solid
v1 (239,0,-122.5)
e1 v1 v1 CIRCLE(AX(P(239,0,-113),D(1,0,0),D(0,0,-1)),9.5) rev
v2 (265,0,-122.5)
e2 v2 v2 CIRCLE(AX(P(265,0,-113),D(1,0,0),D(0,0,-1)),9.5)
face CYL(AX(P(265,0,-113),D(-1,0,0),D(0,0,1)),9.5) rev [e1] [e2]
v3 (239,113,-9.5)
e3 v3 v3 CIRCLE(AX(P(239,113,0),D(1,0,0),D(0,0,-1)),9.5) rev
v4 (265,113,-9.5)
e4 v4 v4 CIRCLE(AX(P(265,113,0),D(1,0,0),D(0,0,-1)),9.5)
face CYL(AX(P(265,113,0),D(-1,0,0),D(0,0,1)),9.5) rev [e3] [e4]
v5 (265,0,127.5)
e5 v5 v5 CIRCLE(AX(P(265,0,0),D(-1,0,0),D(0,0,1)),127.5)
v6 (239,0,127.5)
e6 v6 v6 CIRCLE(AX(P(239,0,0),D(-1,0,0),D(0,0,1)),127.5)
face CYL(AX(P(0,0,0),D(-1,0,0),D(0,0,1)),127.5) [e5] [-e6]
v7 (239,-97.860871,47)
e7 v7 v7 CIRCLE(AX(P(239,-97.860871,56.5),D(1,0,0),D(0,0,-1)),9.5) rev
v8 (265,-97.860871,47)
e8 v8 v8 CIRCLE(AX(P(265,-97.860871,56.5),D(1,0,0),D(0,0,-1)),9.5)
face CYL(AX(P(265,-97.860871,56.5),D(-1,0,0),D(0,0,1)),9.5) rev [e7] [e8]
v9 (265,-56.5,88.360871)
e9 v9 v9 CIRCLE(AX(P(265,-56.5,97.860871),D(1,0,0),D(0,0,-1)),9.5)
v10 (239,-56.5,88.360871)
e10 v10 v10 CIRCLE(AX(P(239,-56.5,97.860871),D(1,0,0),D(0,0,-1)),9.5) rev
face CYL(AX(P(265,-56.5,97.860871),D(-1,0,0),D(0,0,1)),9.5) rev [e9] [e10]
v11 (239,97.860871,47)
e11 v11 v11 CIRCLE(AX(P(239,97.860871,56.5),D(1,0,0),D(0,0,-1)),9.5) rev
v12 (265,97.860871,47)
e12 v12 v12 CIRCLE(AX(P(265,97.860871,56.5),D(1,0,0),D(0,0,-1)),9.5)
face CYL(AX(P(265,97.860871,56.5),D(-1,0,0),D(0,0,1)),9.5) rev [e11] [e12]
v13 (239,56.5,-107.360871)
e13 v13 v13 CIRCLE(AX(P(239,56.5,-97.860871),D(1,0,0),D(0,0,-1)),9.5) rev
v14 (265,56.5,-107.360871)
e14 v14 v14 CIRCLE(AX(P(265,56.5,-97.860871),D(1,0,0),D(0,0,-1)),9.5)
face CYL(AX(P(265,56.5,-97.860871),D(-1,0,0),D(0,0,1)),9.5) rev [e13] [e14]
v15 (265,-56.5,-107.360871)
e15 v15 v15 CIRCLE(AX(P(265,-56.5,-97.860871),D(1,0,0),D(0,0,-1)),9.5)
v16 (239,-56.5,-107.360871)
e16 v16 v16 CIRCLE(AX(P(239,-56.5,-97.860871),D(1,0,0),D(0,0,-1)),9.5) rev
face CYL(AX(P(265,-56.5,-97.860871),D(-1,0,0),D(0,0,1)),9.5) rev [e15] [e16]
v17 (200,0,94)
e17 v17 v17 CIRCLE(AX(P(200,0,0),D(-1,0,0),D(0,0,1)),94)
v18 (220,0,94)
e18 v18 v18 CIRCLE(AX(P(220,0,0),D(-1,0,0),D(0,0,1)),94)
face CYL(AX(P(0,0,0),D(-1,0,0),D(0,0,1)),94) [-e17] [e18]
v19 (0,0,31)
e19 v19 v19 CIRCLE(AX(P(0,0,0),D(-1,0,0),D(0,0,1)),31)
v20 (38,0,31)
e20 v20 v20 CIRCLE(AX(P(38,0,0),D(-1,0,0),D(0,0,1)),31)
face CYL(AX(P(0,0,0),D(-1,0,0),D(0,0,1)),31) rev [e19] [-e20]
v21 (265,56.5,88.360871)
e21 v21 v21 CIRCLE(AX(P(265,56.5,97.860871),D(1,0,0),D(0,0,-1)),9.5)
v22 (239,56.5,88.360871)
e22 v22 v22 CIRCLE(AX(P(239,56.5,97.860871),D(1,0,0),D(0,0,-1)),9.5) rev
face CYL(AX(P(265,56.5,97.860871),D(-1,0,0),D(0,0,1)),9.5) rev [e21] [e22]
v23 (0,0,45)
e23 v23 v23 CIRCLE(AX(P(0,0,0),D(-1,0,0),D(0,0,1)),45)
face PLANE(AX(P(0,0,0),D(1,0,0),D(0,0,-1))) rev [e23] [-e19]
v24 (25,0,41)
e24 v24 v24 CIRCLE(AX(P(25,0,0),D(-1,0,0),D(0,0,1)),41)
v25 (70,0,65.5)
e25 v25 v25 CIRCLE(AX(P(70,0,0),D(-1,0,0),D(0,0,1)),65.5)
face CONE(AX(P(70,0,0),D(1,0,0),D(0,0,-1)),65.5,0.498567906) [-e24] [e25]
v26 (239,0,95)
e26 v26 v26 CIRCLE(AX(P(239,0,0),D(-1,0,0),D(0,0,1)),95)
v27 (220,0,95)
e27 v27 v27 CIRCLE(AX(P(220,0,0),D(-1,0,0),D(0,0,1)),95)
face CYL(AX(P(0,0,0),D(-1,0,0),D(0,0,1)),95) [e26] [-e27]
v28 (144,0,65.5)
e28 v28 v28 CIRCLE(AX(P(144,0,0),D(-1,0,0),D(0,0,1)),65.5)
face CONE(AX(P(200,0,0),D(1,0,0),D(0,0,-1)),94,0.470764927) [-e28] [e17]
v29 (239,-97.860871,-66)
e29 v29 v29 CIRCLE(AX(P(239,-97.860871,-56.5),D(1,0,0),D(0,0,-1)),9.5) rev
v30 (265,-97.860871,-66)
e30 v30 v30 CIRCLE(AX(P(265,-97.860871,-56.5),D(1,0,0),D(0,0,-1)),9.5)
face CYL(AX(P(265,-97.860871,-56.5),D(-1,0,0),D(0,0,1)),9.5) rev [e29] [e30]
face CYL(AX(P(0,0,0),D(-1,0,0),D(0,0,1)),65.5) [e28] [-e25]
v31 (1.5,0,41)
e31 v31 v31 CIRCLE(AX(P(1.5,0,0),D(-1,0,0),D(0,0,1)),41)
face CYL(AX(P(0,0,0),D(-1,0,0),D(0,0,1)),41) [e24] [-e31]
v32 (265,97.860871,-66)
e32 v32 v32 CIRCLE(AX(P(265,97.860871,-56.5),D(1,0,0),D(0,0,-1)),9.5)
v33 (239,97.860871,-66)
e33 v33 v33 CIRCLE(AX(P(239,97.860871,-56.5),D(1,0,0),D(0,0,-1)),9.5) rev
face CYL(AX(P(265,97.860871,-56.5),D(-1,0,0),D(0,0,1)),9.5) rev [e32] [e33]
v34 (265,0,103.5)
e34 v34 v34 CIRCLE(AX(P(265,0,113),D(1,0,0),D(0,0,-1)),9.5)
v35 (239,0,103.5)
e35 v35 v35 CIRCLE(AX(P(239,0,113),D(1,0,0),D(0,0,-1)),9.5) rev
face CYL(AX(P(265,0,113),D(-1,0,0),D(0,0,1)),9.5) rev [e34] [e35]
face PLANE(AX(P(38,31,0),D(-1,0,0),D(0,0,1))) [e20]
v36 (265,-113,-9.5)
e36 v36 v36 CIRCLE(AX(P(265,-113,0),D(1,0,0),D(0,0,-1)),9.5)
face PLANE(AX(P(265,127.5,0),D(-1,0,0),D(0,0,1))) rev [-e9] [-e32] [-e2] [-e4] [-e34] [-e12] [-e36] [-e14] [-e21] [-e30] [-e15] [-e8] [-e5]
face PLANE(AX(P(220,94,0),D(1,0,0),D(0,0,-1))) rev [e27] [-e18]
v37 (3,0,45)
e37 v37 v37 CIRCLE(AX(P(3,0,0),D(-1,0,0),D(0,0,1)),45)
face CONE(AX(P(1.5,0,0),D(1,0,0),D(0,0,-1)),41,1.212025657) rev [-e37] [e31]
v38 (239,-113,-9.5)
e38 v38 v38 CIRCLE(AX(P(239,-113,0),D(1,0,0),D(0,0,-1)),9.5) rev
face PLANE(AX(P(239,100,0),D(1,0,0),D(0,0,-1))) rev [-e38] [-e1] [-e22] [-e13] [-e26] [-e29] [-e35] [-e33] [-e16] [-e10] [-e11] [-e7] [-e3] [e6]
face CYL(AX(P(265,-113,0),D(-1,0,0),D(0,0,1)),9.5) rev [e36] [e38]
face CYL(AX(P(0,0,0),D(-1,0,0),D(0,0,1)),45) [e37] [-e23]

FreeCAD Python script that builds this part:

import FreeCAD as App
import Part
import Sketcher

doc = App.newDocument("Part")
body = doc.addObject("PartDesign::Body", "Body")

sketch1 = doc.addObject("Sketcher::SketchObject", "Sketch")
body.addObject(sketch1)
sketch1.AttachmentSupport = (doc.XY_Plane, [""])
sketch1.MapMode = "FlatFace"
sketch1.addGeometry([
    Part.LineSegment(App.Vector(0, 0, 0), App.Vector(265, 0, 0)),
    Part.LineSegment(App.Vector(265, 0, 0), App.Vector(265, 127.5, 0)),
    Part.LineSegment(App.Vector(265, 127.5, 0), App.Vector(239, 127.5, 0)),
    Part.LineSegment(App.Vector(239, 127.5, 0), App.Vector(239, 95, 0)),
    Part.LineSegment(App.Vector(239, 95, 0), App.Vector(220, 95, 0)),
    Part.LineSegment(App.Vector(220, 95, 0), App.Vector(220, 94, 0)),
    Part.LineSegment(App.Vector(220, 94, 0), App.Vector(200, 94, 0)),
    Part.LineSegment(App.Vector(200, 94, 0), App.Vector(144, 65.5, 0)),
    Part.LineSegment(App.Vector(144, 65.5, 0), App.Vector(70, 65.5, 0)),
    Part.LineSegment(App.Vector(70, 65.5, 0), App.Vector(25, 41, 0)),
    Part.LineSegment(App.Vector(25, 41, 0), App.Vector(1.5, 41, 0)),
    Part.LineSegment(App.Vector(1.5, 41, 0), App.Vector(3, 45, 0)),
    Part.LineSegment(App.Vector(3, 45, 0), App.Vector(0, 45, 0)),
    Part.LineSegment(App.Vector(0, 45, 0), App.Vector(0, 0, 0)),
], False)
sketch1.addConstraint([
    Sketcher.Constraint("Coincident", 0, 2, 1, 1),
    Sketcher.Constraint("Coincident", 1, 2, 2, 1),
    Sketcher.Constraint("Coincident", 2, 2, 3, 1),
    Sketcher.Constraint("Coincident", 3, 2, 4, 1),
    Sketcher.Constraint("Coincident", 4, 2, 5, 1),
    Sketcher.Constraint("Coincident", 5, 2, 6, 1),
    Sketcher.Constraint("Coincident", 6, 2, 7, 1),
    Sketcher.Constraint("Coincident", 7, 2, 8, 1),
    Sketcher.Constraint("Coincident", 8, 2, 9, 1),
    Sketcher.Constraint("Coincident", 9, 2, 10, 1),
    Sketcher.Constraint("Coincident", 10, 2, 11, 1),
    Sketcher.Constraint("Coincident", 11, 2, 12, 1),
    Sketcher.Constraint("Coincident", 12, 2, 13, 1),
    Sketcher.Constraint("Coincident", 13, 2, 0, 1),
    Sketcher.Constraint("Horizontal", 0),
    Sketcher.Constraint("Vertical", 1),
    Sketcher.Constraint("Horizontal", 2),
    Sketcher.Constraint("Vertical", 3),
    Sketcher.Constraint("Horizontal", 4),
    Sketcher.Constraint("Vertical", 5),
    Sketcher.Constraint("Horizontal", 6),
    Sketcher.Constraint("Horizontal", 8),
    Sketcher.Constraint("Horizontal", 10),
    Sketcher.Constraint("Horizontal", 12),
    Sketcher.Constraint("Vertical", 13),
    Sketcher.Constraint("Coincident", 13, 2, -1, 1),
    Sketcher.Constraint("DistanceX", 0, 1, 0, 2, 265.0),
    Sketcher.Constraint("DistanceX", 2, 2, 2, 1, 26.0),
    Sketcher.Constraint("DistanceX", 4, 2, 4, 1, 19.0),
    Sketcher.Constraint("DistanceX", 6, 2, 6, 1, 20.0),
    Sketcher.Constraint("DistanceX", 8, 2, 8, 1, 74.0),
    Sketcher.Constraint("DistanceX", 12, 2, 12, 1, 3.0),
    Sketcher.Constraint("DistanceY", 5, 2, 5, 1, 1.0),
    Sketcher.Constraint("DistanceY", 13, 2, 13, 1, 45.0),
    Sketcher.Constraint("DistanceX", 10, 2, 10, 1, 23.5),
    Sketcher.Constraint("DistanceY", 1, 1, 1, 2, 127.5),
    Sketcher.Constraint("DistanceY", 3, 2, 3, 1, 32.5),
    Sketcher.Constraint("DistanceX", -1, 1, 7, 2, 144.0),
    Sketcher.Constraint("DistanceX", -1, 1, 9, 2, 25.0),
    Sketcher.Constraint("DistanceY", -1, 1, 9, 2, 41.0),
    Sketcher.Constraint("DistanceY", 7, 2, 2, 2, 62.0),
])
revolution = doc.addObject("PartDesign::Revolution", "Revolution")
body.addObject(revolution)
revolution.Profile = sketch1
revolution.ReferenceAxis = (sketch1, ["H_Axis"])
revolution.Angle = 360

sketch2 = doc.addObject("Sketcher::SketchObject", "Sketch001")
body.addObject(sketch2)
sketch2.AttachmentSupport = (doc.XY_Plane, [""])
sketch2.MapMode = "FlatFace"
sketch2.addGeometry([
    Part.LineSegment(App.Vector(0, 31, 0), App.Vector(0, 0, 0)),
    Part.LineSegment(App.Vector(0, 0, 0), App.Vector(38, 0, 0)),
    Part.LineSegment(App.Vector(38, 0, 0), App.Vector(38, 31, 0)),
    Part.LineSegment(App.Vector(38, 31, 0), App.Vector(0, 31, 0)),
], False)
sketch2.addConstraint([
    Sketcher.Constraint("Coincident", 0, 2, 1, 1),
    Sketcher.Constraint("Coincident", 1, 2, 2, 1),
    Sketcher.Constraint("Coincident", 2, 2, 3, 1),
    Sketcher.Constraint("Coincident", 3, 2, 0, 1),
    Sketcher.Constraint("Vertical", 0),
    Sketcher.Constraint("Horizontal", 1),
    Sketcher.Constraint("Vertical", 2),
    Sketcher.Constraint("Horizontal", 3),
    Sketcher.Constraint("Coincident", 0, 2, -1, 1),
    Sketcher.Constraint("DistanceX", 1, 1, 1, 2, 38.0),
    Sketcher.Constraint("DistanceY", 0, 2, 0, 1, 31.0),
])
groove = doc.addObject("PartDesign::Groove", "Groove")
body.addObject(groove)
groove.Profile = sketch2
groove.ReferenceAxis = (sketch2, ["H_Axis"])
groove.Angle = 360

sketch3 = doc.addObject("Sketcher::SketchObject", "Sketch002")
body.addObject(sketch3)
sketch3.AttachmentSupport = (doc.YZ_Plane, [""])
sketch3.MapMode = "FlatFace"
sketch3.addGeometry(Part.Circle(App.Vector(113, 0, 0), App.Vector(0, 0, 1), 9.5), False)
sketch3.addConstraint([
    Sketcher.Constraint("PointOnObject", 0, 3, -1),
    Sketcher.Constraint("Diameter", 0, 19.0),
    Sketcher.Constraint("DistanceX", -1, 1, 0, 3, 113.0),
])
pocket1 = doc.addObject("PartDesign::Pocket", "Pocket")
body.addObject(pocket1)
pocket1.Profile = sketch3
pocket1.Type = "ThroughAll"
pocket1.Reversed = True

sketch4 = doc.addObject("Sketcher::SketchObject", "Sketch003")
body.addObject(sketch4)
sketch4.AttachmentSupport = (doc.YZ_Plane, [""])
sketch4.MapMode = "FlatFace"
sketch4.addGeometry(Part.Circle(App.Vector(97.860871, 56.5, 0), App.Vector(0, 0, 1), 9.5), False)
sketch4.addConstraint([
    Sketcher.Constraint("Diameter", 0, 19.0),
    Sketcher.Constraint("DistanceY", -1, 1, 0, 3, 56.5),
    Sketcher.Constraint("DistanceX", -1, 1, 0, 3, 97.860871),
])
pocket2 = doc.addObject("PartDesign::Pocket", "Pocket001")
body.addObject(pocket2)
pocket2.Profile = sketch4
pocket2.Type = "ThroughAll"
pocket2.Reversed = True

sketch5 = doc.addObject("Sketcher::SketchObject", "Sketch004")
body.addObject(sketch5)
sketch5.AttachmentSupport = (doc.YZ_Plane, [""])
sketch5.MapMode = "FlatFace"
sketch5.addGeometry(Part.Circle(App.Vector(56.5, 97.860871, 0), App.Vector(0, 0, 1), 9.5), False)
sketch5.addConstraint([
    Sketcher.Constraint("Diameter", 0, 19.0),
    Sketcher.Constraint("DistanceX", -1, 1, 0, 3, 56.5),
    Sketcher.Constraint("DistanceY", -1, 1, 0, 3, 97.860871),
])
pocket3 = doc.addObject("PartDesign::Pocket", "Pocket002")
body.addObject(pocket3)
pocket3.Profile = sketch5
pocket3.Type = "ThroughAll"
pocket3.Reversed = True

sketch6 = doc.addObject("Sketcher::SketchObject", "Sketch005")
body.addObject(sketch6)
sketch6.AttachmentSupport = (doc.YZ_Plane, [""])
sketch6.MapMode = "FlatFace"
sketch6.addGeometry(Part.Circle(App.Vector(0, 113, 0), App.Vector(0, 0, 1), 9.5), False)
sketch6.addConstraint([
    Sketcher.Constraint("PointOnObject", 0, 3, -2),
    Sketcher.Constraint("Diameter", 0, 19.0),
    Sketcher.Constraint("DistanceY", -1, 1, 0, 3, 113.0),
])
pocket4 = doc.addObject("PartDesign::Pocket", "Pocket003")
body.addObject(pocket4)
pocket4.Profile = sketch6
pocket4.Type = "ThroughAll"
pocket4.Reversed = True

sketch7 = doc.addObject("Sketcher::SketchObject", "Sketch006")
body.addObject(sketch7)
sketch7.AttachmentSupport = (doc.YZ_Plane, [""])
sketch7.MapMode = "FlatFace"
sketch7.addGeometry(Part.Circle(App.Vector(-56.5, 97.860871, 0), App.Vector(0, 0, 1), 9.5), False)
sketch7.addConstraint([
    Sketcher.Constraint("Diameter", 0, 19.0),
    Sketcher.Constraint("DistanceX", 0, 3, -1, 1, 56.5),
    Sketcher.Constraint("DistanceY", -1, 1, 0, 3, 97.860871),
])
pocket5 = doc.addObject("PartDesign::Pocket", "Pocket004")
body.addObject(pocket5)
pocket5.Profile = sketch7
pocket5.Type = "ThroughAll"
pocket5.Reversed = True

sketch8 = doc.addObject("Sketcher::SketchObject", "Sketch007")
body.addObject(sketch8)
sketch8.AttachmentSupport = (doc.YZ_Plane, [""])
sketch8.MapMode = "FlatFace"
sketch8.addGeometry(Part.Circle(App.Vector(-97.860871, 56.5, 0), App.Vector(0, 0, 1), 9.5), False)
sketch8.addConstraint([
    Sketcher.Constraint("Diameter", 0, 19.0),
    Sketcher.Constraint("DistanceY", -1, 1, 0, 3, 56.5),
    Sketcher.Constraint("DistanceX", 0, 3, -1, 1, 97.860871),
])
pocket6 = doc.addObject("PartDesign::Pocket", "Pocket005")
body.addObject(pocket6)
pocket6.Profile = sketch8
pocket6.Type = "ThroughAll"
pocket6.Reversed = True

sketch9 = doc.addObject("Sketcher::SketchObject", "Sketch008")
body.addObject(sketch9)
sketch9.AttachmentSupport = (doc.YZ_Plane, [""])
sketch9.MapMode = "FlatFace"
sketch9.addGeometry(Part.Circle(App.Vector(-113, 0, 0), App.Vector(0, 0, 1), 9.5), False)
sketch9.addConstraint([
    Sketcher.Constraint("PointOnObject", 0, 3, -1),
    Sketcher.Constraint("Diameter", 0, 19.0),
    Sketcher.Constraint("DistanceX", 0, 3, -1, 1, 113.0),
])
pocket7 = doc.addObject("PartDesign::Pocket", "Pocket006")
body.addObject(pocket7)
pocket7.Profile = sketch9
pocket7.Type = "ThroughAll"
pocket7.Reversed = True

sketch10 = doc.addObject("Sketcher::SketchObject", "Sketch009")
body.addObject(sketch10)
sketch10.AttachmentSupport = (doc.YZ_Plane, [""])
sketch10.MapMode = "FlatFace"
sketch10.addGeometry(Part.Circle(App.Vector(-97.860871, -56.5, 0), App.Vector(0, 0, 1), 9.5), False)
sketch10.addConstraint([
    Sketcher.Constraint("Diameter", 0, 19.0),
    Sketcher.Constraint("DistanceY", 0, 3, -1, 1, 56.5),
    Sketcher.Constraint("DistanceX", 0, 3, -1, 1, 97.860871),
])
pocket8 = doc.addObject("PartDesign::Pocket", "Pocket007")
body.addObject(pocket8)
pocket8.Profile = sketch10
pocket8.Type = "ThroughAll"
pocket8.Reversed = True

sketch11 = doc.addObject("Sketcher::SketchObject", "Sketch010")
body.addObject(sketch11)
sketch11.AttachmentSupport = (doc.YZ_Plane, [""])
sketch11.MapMode = "FlatFace"
sketch11.addGeometry(Part.Circle(App.Vector(-56.5, -97.860871, 0), App.Vector(0, 0, 1), 9.5), False)
sketch11.addConstraint([
    Sketcher.Constraint("Diameter", 0, 19.0),
    Sketcher.Constraint("DistanceX", 0, 3, -1, 1, 56.5),
    Sketcher.Constraint("DistanceY", 0, 3, -1, 1, 97.860871),
])
pocket9 = doc.addObject("PartDesign::Pocket", "Pocket008")
body.addObject(pocket9)
pocket9.Profile = sketch11
pocket9.Type = "ThroughAll"
pocket9.Reversed = True

sketch12 = doc.addObject("Sketcher::SketchObject", "Sketch011")
body.addObject(sketch12)
sketch12.AttachmentSupport = (doc.YZ_Plane, [""])
sketch12.MapMode = "FlatFace"
sketch12.addGeometry(Part.Circle(App.Vector(0, -113, 0), App.Vector(0, 0, 1), 9.5), False)
sketch12.addConstraint([
    Sketcher.Constraint("PointOnObject", 0, 3, -2),
    Sketcher.Constraint("Diameter", 0, 19.0),
    Sketcher.Constraint("DistanceY", 0, 3, -1, 1, 113.0),
])
pocket10 = doc.addObject("PartDesign::Pocket", "Pocket009")
body.addObject(pocket10)
pocket10.Profile = sketch12
pocket10.Type = "ThroughAll"
pocket10.Reversed = True

sketch13 = doc.addObject("Sketcher::SketchObject", "Sketch012")
body.addObject(sketch13)
sketch13.AttachmentSupport = (doc.YZ_Plane, [""])
sketch13.MapMode = "FlatFace"
sketch13.addGeometry(Part.Circle(App.Vector(56.5, -97.860871, 0), App.Vector(0, 0, 1), 9.5), False)
sketch13.addConstraint([
    Sketcher.Constraint("Diameter", 0, 19.0),
    Sketcher.Constraint("DistanceX", -1, 1, 0, 3, 56.5),
    Sketcher.Constraint("DistanceY", 0, 3, -1, 1, 97.860871),
])
pocket11 = doc.addObject("PartDesign::Pocket", "Pocket010")
body.addObject(pocket11)
pocket11.Profile = sketch13
pocket11.Type = "ThroughAll"
pocket11.Reversed = True

sketch14 = doc.addObject("Sketcher::SketchObject", "Sketch013")
body.addObject(sketch14)
sketch14.AttachmentSupport = (doc.YZ_Plane, [""])
sketch14.MapMode = "FlatFace"
sketch14.addGeometry(Part.Circle(App.Vector(97.860871, -56.5, 0), App.Vector(0, 0, 1), 9.5), False)
sketch14.addConstraint([
    Sketcher.Constraint("Diameter", 0, 19.0),
    Sketcher.Constraint("DistanceY", 0, 3, -1, 1, 56.5),
    Sketcher.Constraint("DistanceX", -1, 1, 0, 3, 97.860871),
])
pocket12 = doc.addObject("PartDesign::Pocket", "Pocket011")
body.addObject(pocket12)
pocket12.Profile = sketch14
pocket12.Type = "ThroughAll"
pocket12.Reversed = True

doc.recompute()
